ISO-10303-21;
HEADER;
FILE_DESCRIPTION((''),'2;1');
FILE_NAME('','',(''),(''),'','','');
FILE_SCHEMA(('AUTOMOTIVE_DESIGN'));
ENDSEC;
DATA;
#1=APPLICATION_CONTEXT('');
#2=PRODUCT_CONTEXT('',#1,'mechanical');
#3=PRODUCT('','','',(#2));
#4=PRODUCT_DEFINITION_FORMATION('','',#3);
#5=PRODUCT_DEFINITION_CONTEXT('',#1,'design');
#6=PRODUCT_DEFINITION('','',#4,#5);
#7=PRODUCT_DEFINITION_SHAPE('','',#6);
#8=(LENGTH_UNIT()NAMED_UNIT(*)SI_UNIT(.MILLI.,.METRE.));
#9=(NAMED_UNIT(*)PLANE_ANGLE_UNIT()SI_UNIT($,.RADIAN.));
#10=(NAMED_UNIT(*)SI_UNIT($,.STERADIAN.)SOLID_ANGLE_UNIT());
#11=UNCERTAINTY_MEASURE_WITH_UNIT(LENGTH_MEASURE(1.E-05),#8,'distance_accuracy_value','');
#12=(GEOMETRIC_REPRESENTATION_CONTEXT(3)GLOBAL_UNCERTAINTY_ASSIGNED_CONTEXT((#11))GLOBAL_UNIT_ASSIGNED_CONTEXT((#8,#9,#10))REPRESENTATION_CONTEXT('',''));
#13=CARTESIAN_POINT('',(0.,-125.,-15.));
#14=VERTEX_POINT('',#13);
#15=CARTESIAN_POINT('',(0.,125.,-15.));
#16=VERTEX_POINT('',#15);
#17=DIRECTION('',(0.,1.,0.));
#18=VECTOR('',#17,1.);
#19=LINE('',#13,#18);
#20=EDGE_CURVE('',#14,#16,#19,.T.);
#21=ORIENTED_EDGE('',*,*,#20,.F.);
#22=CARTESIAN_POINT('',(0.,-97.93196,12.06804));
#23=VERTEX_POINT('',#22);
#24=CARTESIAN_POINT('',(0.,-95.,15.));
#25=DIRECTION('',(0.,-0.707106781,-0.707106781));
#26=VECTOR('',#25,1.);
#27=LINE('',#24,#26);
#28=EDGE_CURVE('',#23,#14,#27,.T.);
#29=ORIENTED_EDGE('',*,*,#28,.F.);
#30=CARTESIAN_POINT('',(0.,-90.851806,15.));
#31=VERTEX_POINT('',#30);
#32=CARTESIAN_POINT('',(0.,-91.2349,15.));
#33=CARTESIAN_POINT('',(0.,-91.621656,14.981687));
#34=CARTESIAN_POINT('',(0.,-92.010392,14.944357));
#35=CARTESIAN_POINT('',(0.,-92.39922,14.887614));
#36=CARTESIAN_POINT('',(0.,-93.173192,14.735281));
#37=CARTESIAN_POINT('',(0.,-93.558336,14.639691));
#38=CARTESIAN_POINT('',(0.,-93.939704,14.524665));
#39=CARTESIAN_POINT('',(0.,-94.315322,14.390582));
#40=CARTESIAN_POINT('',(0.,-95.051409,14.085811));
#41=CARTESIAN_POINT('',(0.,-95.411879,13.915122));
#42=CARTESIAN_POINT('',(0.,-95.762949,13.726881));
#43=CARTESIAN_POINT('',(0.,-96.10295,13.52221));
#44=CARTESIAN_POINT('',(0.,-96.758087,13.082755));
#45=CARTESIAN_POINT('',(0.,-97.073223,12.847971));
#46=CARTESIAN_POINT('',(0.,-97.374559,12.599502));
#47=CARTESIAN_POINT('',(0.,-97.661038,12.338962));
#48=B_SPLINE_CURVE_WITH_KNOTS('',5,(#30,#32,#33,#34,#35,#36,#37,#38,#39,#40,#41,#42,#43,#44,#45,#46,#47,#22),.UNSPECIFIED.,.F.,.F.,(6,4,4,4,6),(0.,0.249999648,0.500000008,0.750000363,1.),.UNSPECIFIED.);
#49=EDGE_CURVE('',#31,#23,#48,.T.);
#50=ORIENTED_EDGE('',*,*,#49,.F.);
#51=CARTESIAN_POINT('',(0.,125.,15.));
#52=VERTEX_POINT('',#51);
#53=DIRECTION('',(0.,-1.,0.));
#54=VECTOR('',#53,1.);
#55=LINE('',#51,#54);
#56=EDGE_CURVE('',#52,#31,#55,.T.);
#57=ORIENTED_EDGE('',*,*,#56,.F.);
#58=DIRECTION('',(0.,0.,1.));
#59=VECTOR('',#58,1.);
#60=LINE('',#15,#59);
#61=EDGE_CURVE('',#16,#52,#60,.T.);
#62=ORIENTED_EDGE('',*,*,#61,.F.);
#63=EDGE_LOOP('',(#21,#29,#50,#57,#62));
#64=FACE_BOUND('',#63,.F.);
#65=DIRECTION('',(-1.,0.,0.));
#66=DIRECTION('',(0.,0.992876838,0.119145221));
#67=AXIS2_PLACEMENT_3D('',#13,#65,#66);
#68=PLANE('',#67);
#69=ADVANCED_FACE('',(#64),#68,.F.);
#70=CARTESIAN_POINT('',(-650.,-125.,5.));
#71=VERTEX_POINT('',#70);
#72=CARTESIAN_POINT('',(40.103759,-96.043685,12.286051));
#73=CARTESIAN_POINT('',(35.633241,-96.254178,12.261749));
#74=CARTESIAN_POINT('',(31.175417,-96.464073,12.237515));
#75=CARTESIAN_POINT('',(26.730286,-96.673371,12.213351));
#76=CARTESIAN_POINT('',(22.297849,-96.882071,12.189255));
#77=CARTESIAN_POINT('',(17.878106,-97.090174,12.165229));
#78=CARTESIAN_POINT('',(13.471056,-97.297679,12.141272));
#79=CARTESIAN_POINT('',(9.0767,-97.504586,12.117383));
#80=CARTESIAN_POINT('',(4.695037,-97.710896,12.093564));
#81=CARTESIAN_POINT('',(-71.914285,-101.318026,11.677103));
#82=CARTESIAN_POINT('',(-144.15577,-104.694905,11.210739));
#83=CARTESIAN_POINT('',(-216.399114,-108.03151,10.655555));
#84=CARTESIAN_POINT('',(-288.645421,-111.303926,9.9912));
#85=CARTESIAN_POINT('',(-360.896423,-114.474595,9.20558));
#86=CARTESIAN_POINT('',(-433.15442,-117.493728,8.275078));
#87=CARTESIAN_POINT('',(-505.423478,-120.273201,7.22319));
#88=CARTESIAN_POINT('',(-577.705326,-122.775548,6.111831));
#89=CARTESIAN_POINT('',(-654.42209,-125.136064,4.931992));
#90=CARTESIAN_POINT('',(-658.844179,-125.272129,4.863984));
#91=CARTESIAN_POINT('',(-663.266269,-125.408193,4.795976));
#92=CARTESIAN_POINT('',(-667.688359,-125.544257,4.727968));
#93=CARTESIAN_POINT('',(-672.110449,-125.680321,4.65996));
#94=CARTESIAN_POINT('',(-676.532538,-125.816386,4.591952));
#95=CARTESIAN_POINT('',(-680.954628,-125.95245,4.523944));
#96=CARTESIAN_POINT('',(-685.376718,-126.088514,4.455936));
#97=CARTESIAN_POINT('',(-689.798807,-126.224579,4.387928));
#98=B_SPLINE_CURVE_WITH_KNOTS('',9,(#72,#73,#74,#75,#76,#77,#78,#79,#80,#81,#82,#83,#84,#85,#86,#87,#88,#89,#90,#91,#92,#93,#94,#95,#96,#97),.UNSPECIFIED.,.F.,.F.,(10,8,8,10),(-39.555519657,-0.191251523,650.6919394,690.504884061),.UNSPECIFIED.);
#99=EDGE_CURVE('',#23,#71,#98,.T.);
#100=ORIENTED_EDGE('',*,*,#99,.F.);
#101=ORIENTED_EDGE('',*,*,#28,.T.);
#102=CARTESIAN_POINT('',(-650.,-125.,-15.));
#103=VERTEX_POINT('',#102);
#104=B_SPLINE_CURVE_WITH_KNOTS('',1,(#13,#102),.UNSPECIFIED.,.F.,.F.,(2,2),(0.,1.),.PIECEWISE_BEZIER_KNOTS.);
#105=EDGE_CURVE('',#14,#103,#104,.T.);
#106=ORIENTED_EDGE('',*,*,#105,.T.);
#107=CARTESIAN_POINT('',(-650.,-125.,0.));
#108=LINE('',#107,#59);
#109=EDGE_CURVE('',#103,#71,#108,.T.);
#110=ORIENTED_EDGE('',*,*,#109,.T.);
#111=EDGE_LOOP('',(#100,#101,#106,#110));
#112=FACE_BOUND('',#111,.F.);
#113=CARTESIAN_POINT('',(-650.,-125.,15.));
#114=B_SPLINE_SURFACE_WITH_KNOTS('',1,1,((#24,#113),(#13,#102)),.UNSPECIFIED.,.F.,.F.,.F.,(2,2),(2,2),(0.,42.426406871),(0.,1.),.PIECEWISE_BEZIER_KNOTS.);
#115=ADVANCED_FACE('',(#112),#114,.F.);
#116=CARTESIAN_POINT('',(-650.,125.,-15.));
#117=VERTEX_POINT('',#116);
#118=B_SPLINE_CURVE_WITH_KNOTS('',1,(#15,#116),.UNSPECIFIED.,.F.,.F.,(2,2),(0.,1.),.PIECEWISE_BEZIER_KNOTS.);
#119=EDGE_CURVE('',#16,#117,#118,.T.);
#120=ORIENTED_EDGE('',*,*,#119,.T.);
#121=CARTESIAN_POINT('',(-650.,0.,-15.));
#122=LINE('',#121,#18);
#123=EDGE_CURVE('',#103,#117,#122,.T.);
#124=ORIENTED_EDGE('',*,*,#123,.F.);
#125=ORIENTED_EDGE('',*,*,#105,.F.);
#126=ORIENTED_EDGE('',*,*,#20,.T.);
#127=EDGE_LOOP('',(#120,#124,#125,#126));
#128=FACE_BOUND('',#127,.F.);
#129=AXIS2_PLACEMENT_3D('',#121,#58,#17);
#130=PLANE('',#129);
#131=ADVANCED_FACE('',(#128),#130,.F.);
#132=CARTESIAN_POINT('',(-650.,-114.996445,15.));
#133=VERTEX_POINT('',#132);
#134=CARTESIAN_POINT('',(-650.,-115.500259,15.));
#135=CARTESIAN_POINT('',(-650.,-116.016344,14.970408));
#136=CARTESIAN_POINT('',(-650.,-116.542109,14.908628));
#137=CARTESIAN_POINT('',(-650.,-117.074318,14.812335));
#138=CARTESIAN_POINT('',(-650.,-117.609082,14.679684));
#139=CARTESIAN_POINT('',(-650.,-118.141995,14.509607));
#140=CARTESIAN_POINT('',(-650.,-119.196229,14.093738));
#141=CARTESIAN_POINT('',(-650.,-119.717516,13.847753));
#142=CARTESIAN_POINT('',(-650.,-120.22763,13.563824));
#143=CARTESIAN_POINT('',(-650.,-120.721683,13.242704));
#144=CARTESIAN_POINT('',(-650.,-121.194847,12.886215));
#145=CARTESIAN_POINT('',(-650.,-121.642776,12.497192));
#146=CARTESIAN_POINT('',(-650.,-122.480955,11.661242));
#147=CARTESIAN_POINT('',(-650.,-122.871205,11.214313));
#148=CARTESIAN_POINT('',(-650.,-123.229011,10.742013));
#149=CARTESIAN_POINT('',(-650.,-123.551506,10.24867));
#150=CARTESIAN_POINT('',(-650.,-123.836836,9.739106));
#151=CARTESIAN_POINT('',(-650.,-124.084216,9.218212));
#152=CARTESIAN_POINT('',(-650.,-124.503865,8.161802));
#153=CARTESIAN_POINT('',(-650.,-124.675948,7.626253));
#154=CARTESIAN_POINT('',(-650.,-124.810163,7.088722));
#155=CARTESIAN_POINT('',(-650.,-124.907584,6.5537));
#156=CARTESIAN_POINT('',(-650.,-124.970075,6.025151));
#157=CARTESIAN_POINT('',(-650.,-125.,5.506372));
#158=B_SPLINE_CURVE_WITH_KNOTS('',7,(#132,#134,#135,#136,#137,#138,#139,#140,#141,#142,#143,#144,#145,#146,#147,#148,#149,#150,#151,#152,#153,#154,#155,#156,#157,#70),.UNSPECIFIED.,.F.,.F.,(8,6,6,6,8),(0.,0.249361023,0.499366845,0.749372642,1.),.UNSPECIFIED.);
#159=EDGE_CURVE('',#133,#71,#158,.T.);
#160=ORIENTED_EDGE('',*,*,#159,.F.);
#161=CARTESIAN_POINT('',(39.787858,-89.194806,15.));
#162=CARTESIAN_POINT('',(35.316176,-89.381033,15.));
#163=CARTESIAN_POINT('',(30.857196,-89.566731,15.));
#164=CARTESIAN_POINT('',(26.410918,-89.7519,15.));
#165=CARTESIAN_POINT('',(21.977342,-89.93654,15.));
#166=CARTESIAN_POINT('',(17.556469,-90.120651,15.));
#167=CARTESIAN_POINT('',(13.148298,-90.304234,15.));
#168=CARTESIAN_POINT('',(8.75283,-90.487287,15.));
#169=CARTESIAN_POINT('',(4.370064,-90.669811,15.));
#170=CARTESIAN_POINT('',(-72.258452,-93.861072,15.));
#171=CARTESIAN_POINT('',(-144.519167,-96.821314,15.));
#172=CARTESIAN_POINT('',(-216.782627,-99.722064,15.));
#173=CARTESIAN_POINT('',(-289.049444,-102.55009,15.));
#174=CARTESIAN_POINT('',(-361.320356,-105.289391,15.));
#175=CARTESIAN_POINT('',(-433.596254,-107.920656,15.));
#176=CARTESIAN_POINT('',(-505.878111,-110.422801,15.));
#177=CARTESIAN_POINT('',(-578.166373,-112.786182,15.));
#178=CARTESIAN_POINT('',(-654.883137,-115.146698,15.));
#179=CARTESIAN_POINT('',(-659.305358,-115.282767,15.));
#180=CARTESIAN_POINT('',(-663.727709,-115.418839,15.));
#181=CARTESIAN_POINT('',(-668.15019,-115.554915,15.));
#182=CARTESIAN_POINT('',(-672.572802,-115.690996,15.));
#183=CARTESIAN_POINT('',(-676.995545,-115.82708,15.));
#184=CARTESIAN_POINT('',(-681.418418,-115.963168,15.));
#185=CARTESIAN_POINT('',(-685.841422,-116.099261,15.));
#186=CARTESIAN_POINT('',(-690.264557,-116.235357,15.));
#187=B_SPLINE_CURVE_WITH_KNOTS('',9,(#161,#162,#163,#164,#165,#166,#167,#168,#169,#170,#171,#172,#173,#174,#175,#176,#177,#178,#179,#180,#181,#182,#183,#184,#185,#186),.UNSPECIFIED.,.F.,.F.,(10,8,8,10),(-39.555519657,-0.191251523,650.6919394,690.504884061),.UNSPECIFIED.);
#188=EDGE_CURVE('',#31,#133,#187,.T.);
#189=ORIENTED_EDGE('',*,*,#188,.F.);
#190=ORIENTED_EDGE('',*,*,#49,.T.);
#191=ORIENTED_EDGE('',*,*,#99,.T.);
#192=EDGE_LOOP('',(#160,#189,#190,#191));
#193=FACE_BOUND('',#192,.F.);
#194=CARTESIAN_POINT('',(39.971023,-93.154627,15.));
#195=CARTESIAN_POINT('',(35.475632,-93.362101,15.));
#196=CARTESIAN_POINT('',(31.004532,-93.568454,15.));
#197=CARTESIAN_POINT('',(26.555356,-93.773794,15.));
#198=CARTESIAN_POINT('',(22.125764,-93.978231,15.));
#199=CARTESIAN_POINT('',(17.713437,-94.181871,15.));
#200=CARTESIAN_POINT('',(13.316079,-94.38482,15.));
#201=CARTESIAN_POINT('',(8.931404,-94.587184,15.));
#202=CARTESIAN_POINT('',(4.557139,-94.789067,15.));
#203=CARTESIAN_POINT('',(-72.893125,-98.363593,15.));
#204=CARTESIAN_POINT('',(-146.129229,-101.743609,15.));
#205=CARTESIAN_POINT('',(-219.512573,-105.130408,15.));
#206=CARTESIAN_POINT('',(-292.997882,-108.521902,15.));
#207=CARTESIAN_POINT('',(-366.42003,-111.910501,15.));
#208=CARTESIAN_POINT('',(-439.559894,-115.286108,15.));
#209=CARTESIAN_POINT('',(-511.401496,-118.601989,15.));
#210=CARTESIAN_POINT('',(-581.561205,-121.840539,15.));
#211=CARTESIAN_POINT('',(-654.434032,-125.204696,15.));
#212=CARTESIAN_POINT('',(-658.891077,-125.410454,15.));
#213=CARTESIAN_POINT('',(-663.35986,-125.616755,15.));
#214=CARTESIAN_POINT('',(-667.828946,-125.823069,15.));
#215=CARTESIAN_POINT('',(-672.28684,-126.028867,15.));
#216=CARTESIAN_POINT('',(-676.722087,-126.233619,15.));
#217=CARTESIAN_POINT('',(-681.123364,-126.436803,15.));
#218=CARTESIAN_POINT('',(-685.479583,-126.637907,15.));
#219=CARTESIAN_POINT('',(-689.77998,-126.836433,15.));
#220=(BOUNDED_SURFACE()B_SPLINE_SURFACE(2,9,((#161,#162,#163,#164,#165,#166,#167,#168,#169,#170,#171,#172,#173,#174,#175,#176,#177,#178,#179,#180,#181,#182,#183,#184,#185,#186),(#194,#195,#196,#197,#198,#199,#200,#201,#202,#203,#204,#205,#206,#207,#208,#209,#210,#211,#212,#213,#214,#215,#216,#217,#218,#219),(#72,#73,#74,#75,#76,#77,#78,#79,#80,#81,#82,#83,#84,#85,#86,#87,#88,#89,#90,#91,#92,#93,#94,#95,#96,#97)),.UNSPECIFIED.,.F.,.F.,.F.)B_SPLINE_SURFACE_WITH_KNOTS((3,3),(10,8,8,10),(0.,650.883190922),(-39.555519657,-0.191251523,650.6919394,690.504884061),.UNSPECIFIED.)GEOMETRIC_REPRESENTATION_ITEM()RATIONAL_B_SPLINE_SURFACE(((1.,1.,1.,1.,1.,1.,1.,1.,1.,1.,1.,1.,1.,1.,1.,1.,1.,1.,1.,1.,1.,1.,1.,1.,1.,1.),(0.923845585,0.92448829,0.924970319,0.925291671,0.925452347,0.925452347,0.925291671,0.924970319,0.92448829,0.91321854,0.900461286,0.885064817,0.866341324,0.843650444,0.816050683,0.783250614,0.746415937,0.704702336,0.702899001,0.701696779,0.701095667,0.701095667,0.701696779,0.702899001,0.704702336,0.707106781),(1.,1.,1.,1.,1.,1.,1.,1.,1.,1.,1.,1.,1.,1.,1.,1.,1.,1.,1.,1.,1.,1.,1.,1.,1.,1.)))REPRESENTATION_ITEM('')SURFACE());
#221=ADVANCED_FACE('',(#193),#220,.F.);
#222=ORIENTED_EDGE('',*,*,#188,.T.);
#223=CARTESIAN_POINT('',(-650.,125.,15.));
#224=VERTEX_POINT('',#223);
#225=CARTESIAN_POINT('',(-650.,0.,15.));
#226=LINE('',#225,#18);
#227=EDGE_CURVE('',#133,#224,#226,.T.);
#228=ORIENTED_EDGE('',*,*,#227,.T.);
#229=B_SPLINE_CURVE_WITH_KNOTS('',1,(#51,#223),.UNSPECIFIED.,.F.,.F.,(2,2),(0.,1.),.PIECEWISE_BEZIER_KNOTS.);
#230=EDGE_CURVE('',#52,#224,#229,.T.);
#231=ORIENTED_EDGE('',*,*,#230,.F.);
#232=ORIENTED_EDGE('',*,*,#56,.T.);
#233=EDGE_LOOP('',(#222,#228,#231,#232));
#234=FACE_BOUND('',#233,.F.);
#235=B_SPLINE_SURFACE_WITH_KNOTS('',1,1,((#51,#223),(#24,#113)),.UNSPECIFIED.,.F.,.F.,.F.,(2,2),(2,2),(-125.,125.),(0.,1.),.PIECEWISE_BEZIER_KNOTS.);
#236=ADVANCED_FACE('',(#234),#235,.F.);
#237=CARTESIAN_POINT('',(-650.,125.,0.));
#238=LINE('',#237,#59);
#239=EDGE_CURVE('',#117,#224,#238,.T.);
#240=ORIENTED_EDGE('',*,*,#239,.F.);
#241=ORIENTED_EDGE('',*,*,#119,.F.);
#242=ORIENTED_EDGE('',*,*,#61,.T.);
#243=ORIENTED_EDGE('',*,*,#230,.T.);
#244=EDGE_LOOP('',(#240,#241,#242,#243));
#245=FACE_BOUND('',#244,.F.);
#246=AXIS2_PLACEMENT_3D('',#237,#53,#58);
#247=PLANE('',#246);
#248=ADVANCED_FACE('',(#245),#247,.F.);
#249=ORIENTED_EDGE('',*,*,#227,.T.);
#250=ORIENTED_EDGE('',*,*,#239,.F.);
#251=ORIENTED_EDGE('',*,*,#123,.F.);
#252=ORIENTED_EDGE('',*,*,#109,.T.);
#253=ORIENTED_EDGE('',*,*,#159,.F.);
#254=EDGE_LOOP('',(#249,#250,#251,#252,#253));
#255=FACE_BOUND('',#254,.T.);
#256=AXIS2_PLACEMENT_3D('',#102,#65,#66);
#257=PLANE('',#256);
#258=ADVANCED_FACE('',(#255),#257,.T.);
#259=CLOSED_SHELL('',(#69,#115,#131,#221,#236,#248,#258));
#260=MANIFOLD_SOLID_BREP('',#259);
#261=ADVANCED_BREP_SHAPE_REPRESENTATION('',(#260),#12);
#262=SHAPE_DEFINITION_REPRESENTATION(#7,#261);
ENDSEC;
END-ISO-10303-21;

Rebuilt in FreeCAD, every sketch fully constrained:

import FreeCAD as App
import Part
import Sketcher


def edges_at(feature, points):
    """Names of the edges that pass closest to the given points."""
    edges = feature.Shape.Edges
    near = lambda p: min(range(len(edges)), key=lambda i: edges[i].distToShape(Part.Vertex(*p))[0])
    return sorted({f"Edge{near(p) + 1}" for p in points})


def add_polygon(sketch, points):
    """Adds a closed chain of lines whose ends are joined by coincident constraints."""
    first, n = sketch.GeometryCount, len(points)
    for a, b in zip(points, points[1:] + points[:1]):
        sketch.addGeometry(Part.LineSegment(App.Vector(*a, 0), App.Vector(*b, 0)), False)
    for i in range(n):
        sketch.addConstraint(Sketcher.Constraint("Coincident", first + i, 2, first + (i + 1) % n, 1))

doc = App.newDocument("Part")
body = doc.addObject("PartDesign::Body", "Body")

# Sketch on YZ plane
sketch1 = doc.addObject("Sketcher::SketchObject", "Sketch")
body.addObject(sketch1)
sketch1.AttachmentSupport = (doc.YZ_Plane, [""])
sketch1.MapMode = "FlatFace"
add_polygon(sketch1, [(-125, -15), (125, -15), (125, 15), (-95, 15)])  # lines 0-3
sketch1.addConstraint(Sketcher.Constraint("Horizontal", 0))
sketch1.addConstraint(Sketcher.Constraint("Vertical", 1))
sketch1.addConstraint(Sketcher.Constraint("Horizontal", 2))
sketch1.addConstraint(Sketcher.Constraint("Symmetric", 1, 2, 3, 2, -1, 1))
sketch1.addConstraint(Sketcher.Constraint("DistanceX", 0, 1, 0, 2, 250.0))
sketch1.addConstraint(Sketcher.Constraint("DistanceX", 2, 2, 2, 1, 220.0))
sketch1.addConstraint(Sketcher.Constraint("DistanceY", 1, 1, 1, 2, 30.0))

# Sketch on YZ plane
sketch2 = doc.addObject("Sketcher::SketchObject", "Sketch001")
body.addObject(sketch2)
sketch2.AttachmentSupport = (doc.YZ_Plane, [""])
sketch2.MapMode = "FlatFace"
sketch2.AttachmentOffset = App.Placement(App.Vector(0, 0, -650), App.Rotation())
add_polygon(sketch2, [(-125, 15), (-125, -15), (125, -15), (125, 15)])  # lines 0-3
sketch2.addConstraint(Sketcher.Constraint("Vertical", 0))
sketch2.addConstraint(Sketcher.Constraint("Horizontal", 1))
sketch2.addConstraint(Sketcher.Constraint("Vertical", 2))
sketch2.addConstraint(Sketcher.Constraint("Horizontal", 3))
sketch2.addConstraint(Sketcher.Constraint("Symmetric", 0, 2, 2, 2, -1, 1))
sketch2.addConstraint(Sketcher.Constraint("DistanceX", 1, 1, 1, 2, 250.0))
sketch2.addConstraint(Sketcher.Constraint("DistanceY", 0, 2, 0, 1, 30.0))

additiveloft = doc.addObject("PartDesign::AdditiveLoft", "AdditiveLoft")
body.addObject(additiveloft)
additiveloft.Profile = sketch1
additiveloft.Sections = [sketch2]
doc.recompute()

fillet = doc.addObject("PartDesign::Fillet", "Fillet")
body.addObject(fillet)
fillet.Base = (additiveloft, edges_at(additiveloft, [(-325, -110, 15)]))
fillet.Radius = 10

doc.recompute()
